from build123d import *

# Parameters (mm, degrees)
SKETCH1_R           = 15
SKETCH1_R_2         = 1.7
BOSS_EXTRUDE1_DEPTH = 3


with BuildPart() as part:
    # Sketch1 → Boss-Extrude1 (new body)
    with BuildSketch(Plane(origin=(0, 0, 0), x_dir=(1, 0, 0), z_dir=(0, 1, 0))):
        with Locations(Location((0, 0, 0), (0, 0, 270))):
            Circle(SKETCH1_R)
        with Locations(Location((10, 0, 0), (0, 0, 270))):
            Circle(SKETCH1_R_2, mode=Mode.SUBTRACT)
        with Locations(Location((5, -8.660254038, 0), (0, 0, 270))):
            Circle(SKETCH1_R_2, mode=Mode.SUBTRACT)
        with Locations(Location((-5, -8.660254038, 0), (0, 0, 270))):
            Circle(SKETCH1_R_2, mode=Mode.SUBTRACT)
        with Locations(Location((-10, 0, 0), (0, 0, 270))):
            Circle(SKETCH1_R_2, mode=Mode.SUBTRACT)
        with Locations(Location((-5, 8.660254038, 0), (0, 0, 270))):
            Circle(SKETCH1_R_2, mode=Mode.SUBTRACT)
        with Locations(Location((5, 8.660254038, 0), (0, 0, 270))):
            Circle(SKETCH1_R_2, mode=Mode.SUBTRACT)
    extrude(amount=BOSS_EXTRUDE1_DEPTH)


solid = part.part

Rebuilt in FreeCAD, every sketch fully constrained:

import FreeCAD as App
import Part
import Sketcher

doc = App.newDocument("Part")
body = doc.addObject("PartDesign::Body", "Body")

sketch1 = body.newObject("Sketcher::SketchObject", "Sketch")
sketch1.AttachmentSupport = (doc.getObject("XZ_Plane"), [""])
sketch1.MapMode = "FlatFace"
sketch1.addGeometry([
    Part.Circle(App.Vector(0, 0, 0), App.Vector(0, 0, 1), 15),
    Part.Circle(App.Vector(-5, -8.7, 0), App.Vector(0, 0, 1), 1.7),
    Part.Circle(App.Vector(-10, 0, 0), App.Vector(0, 0, 1), 1.7),
    Part.Circle(App.Vector(-5, 8.7, 0), App.Vector(0, 0, 1), 1.7),
    Part.Circle(App.Vector(5, -8.7, 0), App.Vector(0, 0, 1), 1.7),
    Part.Circle(App.Vector(10, 0, 0), App.Vector(0, 0, 1), 1.7),
    Part.Circle(App.Vector(5, 8.7, 0), App.Vector(0, 0, 1), 1.7),
], False)
sketch1.addConstraint([
    Sketcher.Constraint("Coincident", 0, 3, -1, 1),
    Sketcher.Constraint("Equal", 1, 2),
    Sketcher.Constraint("Equal", 2, 3),
    Sketcher.Constraint("Equal", 3, 4),
    Sketcher.Constraint("Equal", 4, 5),
    Sketcher.Constraint("Equal", 5, 6),
    Sketcher.Constraint("Symmetric", 3, 3, 4, 3, -1, 1),
    Sketcher.Constraint("Symmetric", 2, 3, 5, 3, -1, 1),
    Sketcher.Constraint("Symmetric", 1, 3, 6, 3, -1, 1),
    Sketcher.Constraint("Symmetric", 1, 3, 4, 3, -2),
    Sketcher.Constraint("PointOnObject", 2, 3, -1),
    Sketcher.Constraint("Diameter", 0, 30.0),
    Sketcher.Constraint("Diameter", 1, 3.4),
    Sketcher.Constraint("DistanceX", 1, 3, -1, 1, 5.0),
    Sketcher.Constraint("DistanceX", 2, 3, -1, 1, 10.0),
    Sketcher.Constraint("DistanceY", 1, 3, 3, 3, 17.320508),
])
pad1 = body.newObject("PartDesign::Pad", "Pad")
pad1.Profile = sketch1
pad1.Length = 3
pad1.Reversed = True

doc.recompute()
